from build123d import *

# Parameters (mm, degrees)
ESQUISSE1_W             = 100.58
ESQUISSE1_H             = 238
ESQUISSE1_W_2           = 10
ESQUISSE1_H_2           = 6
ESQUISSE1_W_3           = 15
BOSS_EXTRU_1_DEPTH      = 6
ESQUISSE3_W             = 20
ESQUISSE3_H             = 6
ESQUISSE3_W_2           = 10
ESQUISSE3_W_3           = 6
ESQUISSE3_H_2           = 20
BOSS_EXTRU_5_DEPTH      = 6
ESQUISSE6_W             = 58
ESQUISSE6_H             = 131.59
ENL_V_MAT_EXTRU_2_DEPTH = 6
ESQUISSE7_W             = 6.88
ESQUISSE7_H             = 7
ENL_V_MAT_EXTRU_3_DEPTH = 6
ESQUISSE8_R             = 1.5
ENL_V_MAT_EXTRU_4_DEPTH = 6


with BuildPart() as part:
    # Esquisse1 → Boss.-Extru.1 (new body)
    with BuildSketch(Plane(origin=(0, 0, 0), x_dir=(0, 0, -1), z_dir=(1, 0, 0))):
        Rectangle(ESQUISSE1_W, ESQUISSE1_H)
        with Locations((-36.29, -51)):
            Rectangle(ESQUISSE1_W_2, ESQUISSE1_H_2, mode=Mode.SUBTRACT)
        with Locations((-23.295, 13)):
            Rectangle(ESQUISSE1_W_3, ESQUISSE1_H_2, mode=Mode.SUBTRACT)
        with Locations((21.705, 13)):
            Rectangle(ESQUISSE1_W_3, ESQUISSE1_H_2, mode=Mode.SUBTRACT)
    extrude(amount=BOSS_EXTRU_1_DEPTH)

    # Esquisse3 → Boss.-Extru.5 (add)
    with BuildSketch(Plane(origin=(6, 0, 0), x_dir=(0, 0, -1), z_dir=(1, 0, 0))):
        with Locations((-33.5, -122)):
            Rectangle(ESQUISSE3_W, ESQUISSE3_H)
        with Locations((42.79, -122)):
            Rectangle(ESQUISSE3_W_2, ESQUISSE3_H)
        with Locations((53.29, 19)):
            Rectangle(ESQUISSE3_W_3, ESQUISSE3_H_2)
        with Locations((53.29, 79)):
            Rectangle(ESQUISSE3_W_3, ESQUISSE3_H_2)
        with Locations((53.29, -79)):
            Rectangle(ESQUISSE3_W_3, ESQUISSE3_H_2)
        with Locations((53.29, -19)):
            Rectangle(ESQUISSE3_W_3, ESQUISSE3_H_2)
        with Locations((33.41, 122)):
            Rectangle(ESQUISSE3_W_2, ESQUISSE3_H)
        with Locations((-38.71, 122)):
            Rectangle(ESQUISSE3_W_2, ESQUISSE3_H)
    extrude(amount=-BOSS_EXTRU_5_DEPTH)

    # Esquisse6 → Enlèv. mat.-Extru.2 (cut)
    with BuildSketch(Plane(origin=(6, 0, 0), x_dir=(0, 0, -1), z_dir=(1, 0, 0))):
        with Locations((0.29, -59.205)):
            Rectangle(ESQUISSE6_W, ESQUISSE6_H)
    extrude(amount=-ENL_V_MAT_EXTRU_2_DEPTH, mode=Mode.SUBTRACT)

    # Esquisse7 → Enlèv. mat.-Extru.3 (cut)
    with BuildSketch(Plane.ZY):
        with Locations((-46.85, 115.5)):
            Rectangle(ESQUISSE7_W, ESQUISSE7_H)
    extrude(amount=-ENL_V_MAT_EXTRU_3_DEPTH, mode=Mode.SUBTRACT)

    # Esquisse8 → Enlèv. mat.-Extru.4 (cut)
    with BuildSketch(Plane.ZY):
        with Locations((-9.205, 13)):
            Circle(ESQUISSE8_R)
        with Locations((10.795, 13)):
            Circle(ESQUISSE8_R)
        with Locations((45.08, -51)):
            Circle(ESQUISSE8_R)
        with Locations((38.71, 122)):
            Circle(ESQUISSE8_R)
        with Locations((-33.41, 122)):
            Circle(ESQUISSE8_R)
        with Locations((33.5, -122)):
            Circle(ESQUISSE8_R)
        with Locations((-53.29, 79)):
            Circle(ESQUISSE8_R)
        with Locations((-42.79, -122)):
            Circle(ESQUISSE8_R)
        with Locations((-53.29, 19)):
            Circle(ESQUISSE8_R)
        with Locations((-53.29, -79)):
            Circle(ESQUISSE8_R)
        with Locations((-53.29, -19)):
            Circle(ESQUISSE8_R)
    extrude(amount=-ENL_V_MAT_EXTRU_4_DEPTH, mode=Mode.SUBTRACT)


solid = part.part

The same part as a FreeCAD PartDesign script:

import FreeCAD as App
import Part
import Sketcher
from FreeCAD import Vector


def add_polygon(sketch, points):
    """Adds a closed chain of lines whose ends are joined by coincident constraints."""
    first, n = sketch.GeometryCount, len(points)
    for a, b in zip(points, points[1:] + points[:1]):
        sketch.addGeometry(Part.LineSegment(App.Vector(*a, 0), App.Vector(*b, 0)), False)
    for i in range(n):
        sketch.addConstraint(Sketcher.Constraint("Coincident", first + i, 2, first + (i + 1) % n, 1))

doc = App.newDocument("Part")
body = doc.addObject("PartDesign::Body", "Body")

# Sketch on YZ plane
sketch1 = body.newObject("Sketcher::SketchObject", "Sketch")
sketch1.AttachmentSupport = (doc.getObject("YZ_Plane"), [""])
sketch1.MapMode = "FlatFace"
add_polygon(sketch1, [(119, 50.29), (-119, 50.29), (-119, -50.29), (119, -50.29)])  # lines 0-3
add_polygon(sketch1, [(-54, 31.29), (-54, 41.29), (-48, 41.29), (-48, 31.29)])  # lines 4-7
add_polygon(sketch1, [(10, 15.795), (10, 30.795), (16, 30.795), (16, 15.795)])  # lines 8-11
add_polygon(sketch1, [(10, -29.205), (10, -14.205), (16, -14.205), (16, -29.205)])  # lines 12-15
sketch1.addConstraint(Sketcher.Constraint("Horizontal", 0))
sketch1.addConstraint(Sketcher.Constraint("Vertical", 1))
sketch1.addConstraint(Sketcher.Constraint("Horizontal", 2))
sketch1.addConstraint(Sketcher.Constraint("Vertical", 3))
sketch1.addConstraint(Sketcher.Constraint("Vertical", 4))
sketch1.addConstraint(Sketcher.Constraint("Horizontal", 5))
sketch1.addConstraint(Sketcher.Constraint("Vertical", 6))
sketch1.addConstraint(Sketcher.Constraint("Horizontal", 7))
sketch1.addConstraint(Sketcher.Constraint("Vertical", 8))
sketch1.addConstraint(Sketcher.Constraint("Horizontal", 9))
sketch1.addConstraint(Sketcher.Constraint("Vertical", 10))
sketch1.addConstraint(Sketcher.Constraint("Horizontal", 11))
sketch1.addConstraint(Sketcher.Constraint("Vertical", 12))
sketch1.addConstraint(Sketcher.Constraint("Horizontal", 13))
sketch1.addConstraint(Sketcher.Constraint("Vertical", 14))
sketch1.addConstraint(Sketcher.Constraint("Horizontal", 15))
sketch1.addConstraint(Sketcher.Constraint("Symmetric", 0, 2, 2, 2, -1, 1))
sketch1.addConstraint(Sketcher.Constraint("Vertical", 11, 2, 12, 2))
sketch1.addConstraint(Sketcher.Constraint("Vertical", 10, 2, 13, 2))
sketch1.addConstraint(Sketcher.Constraint("Equal", 7, 9))
sketch1.addConstraint(Sketcher.Constraint("Equal", 10, 12))
sketch1.addConstraint(Sketcher.Constraint("DistanceX", 0, 2, 0, 1, 238.0))
sketch1.addConstraint(Sketcher.Constraint("DistanceX", 5, 1, 5, 2, 6.0))
sketch1.addConstraint(Sketcher.Constraint("DistanceY", 4, 1, 4, 2, 10.0))
sketch1.addConstraint(Sketcher.Constraint("DistanceY", 8, 1, 8, 2, 15.0))
sketch1.addConstraint(Sketcher.Constraint("DistanceX", 4, 2, -1, 1, 54.0))
sketch1.addConstraint(Sketcher.Constraint("DistanceX", -1, 1, 8, 2, 10.0))
sketch1.addConstraint(Sketcher.Constraint("DistanceY", 4, 2, 0, 2, 9.0))
sketch1.addConstraint(Sketcher.Constraint("DistanceY", 12, 2, 11, 2, 30.0))
sketch1.addConstraint(Sketcher.Constraint("DistanceY", 1, 2, 1, 1, 100.58))
sketch1.addConstraint(Sketcher.Constraint("DistanceY", -1, 1, 8, 2, 30.795))
pad1 = body.newObject("PartDesign::Pad", "Pad")
pad1.Profile = sketch1
pad1.Length = 6

# Sketch on YZ plane
sketch2 = body.newObject("Sketcher::SketchObject", "Sketch001")
sketch2.AttachmentSupport = (doc.getObject("YZ_Plane"), [""])
sketch2.MapMode = "FlatFace"
sketch2.AttachmentOffset = App.Placement(Vector(0, 0, 6), App.Rotation())
add_polygon(sketch2, [(-119, 43.5), (-125, 43.5), (-125, 23.5), (-119, 23.5)])  # lines 0-3
add_polygon(sketch2, [(-119, -37.79), (-125, -37.79), (-125, -47.79), (-119, -47.79)])  # lines 4-7
add_polygon(sketch2, [(29, -50.29), (9, -50.29), (9, -56.29), (29, -56.29)])  # lines 8-11
add_polygon(sketch2, [(89, -50.29), (69, -50.29), (69, -56.29), (89, -56.29)])  # lines 12-15
add_polygon(sketch2, [(-69, -50.29), (-89, -50.29), (-89, -56.29), (-69, -56.29)])  # lines 16-19
add_polygon(sketch2, [(-9, -50.29), (-29, -50.29), (-29, -56.29), (-9, -56.29)])  # lines 20-23
add_polygon(sketch2, [(125, -28.41), (119, -28.41), (119, -38.41), (125, -38.41)])  # lines 24-27
add_polygon(sketch2, [(125, 43.71), (119, 43.71), (119, 33.71), (125, 33.71)])  # lines 28-31
sketch2.addConstraint(Sketcher.Constraint("Horizontal", 0))
sketch2.addConstraint(Sketcher.Constraint("Vertical", 1))
sketch2.addConstraint(Sketcher.Constraint("Horizontal", 2))
sketch2.addConstraint(Sketcher.Constraint("Vertical", 3))
sketch2.addConstraint(Sketcher.Constraint("Horizontal", 4))
sketch2.addConstraint(Sketcher.Constraint("Vertical", 5))
sketch2.addConstraint(Sketcher.Constraint("Horizontal", 6))
sketch2.addConstraint(Sketcher.Constraint("Vertical", 7))
sketch2.addConstraint(Sketcher.Constraint("Horizontal", 8))
sketch2.addConstraint(Sketcher.Constraint("Vertical", 9))
sketch2.addConstraint(Sketcher.Constraint("Horizontal", 10))
sketch2.addConstraint(Sketcher.Constraint("Vertical", 11))
sketch2.addConstraint(Sketcher.Constraint("Horizontal", 12))
sketch2.addConstraint(Sketcher.Constraint("Vertical", 13))
sketch2.addConstraint(Sketcher.Constraint("Horizontal", 14))
sketch2.addConstraint(Sketcher.Constraint("Vertical", 15))
sketch2.addConstraint(Sketcher.Constraint("Horizontal", 16))
sketch2.addConstraint(Sketcher.Constraint("Vertical", 17))
sketch2.addConstraint(Sketcher.Constraint("Horizontal", 18))
sketch2.addConstraint(Sketcher.Constraint("Vertical", 19))
sketch2.addConstraint(Sketcher.Constraint("Horizontal", 20))
sketch2.addConstraint(Sketcher.Constraint("Vertical", 21))
sketch2.addConstraint(Sketcher.Constraint("Horizontal", 22))
sketch2.addConstraint(Sketcher.Constraint("Vertical", 23))
sketch2.addConstraint(Sketcher.Constraint("Horizontal", 24))
sketch2.addConstraint(Sketcher.Constraint("Vertical", 25))
sketch2.addConstraint(Sketcher.Constraint("Horizontal", 26))
sketch2.addConstraint(Sketcher.Constraint("Vertical", 27))
sketch2.addConstraint(Sketcher.Constraint("Horizontal", 28))
sketch2.addConstraint(Sketcher.Constraint("Vertical", 29))
sketch2.addConstraint(Sketcher.Constraint("Horizontal", 30))
sketch2.addConstraint(Sketcher.Constraint("Vertical", 31))
sketch2.addConstraint(Sketcher.Constraint("Symmetric", 15, 2, 16, 2, -2))
sketch2.addConstraint(Sketcher.Constraint("Symmetric", 13, 2, 18, 2, -2))
sketch2.addConstraint(Sketcher.Constraint("Symmetric", 11, 2, 20, 2, -2))
sketch2.addConstraint(Sketcher.Constraint("Symmetric", 9, 2, 22, 2, -2))
sketch2.addConstraint(Sketcher.Constraint("Horizontal", 11, 2, 12, 2))
sketch2.addConstraint(Sketcher.Constraint("Horizontal", 10, 2, 13, 2))
sketch2.addConstraint(Sketcher.Constraint("Vertical", 1, 2, 4, 2))
sketch2.addConstraint(Sketcher.Constraint("Vertical", 3, 2, 6, 2))
sketch2.addConstraint(Sketcher.Constraint("Vertical", 25, 2, 28, 2))
sketch2.addConstraint(Sketcher.Constraint("Vertical", 27, 2, 30, 2))
sketch2.addConstraint(Sketcher.Constraint("Equal", 10, 12))
sketch2.addConstraint(Sketcher.Constraint("Equal", 6, 24))
sketch2.addConstraint(Sketcher.Constraint("Equal", 22, 1))
sketch2.addConstraint(Sketcher.Constraint("Equal", 30, 9))
sketch2.addConstraint(Sketcher.Constraint("Equal", 7, 25))
sketch2.addConstraint(Sketcher.Constraint("Equal", 27, 29))
sketch2.addConstraint(Sketcher.Constraint("DistanceX", 0, 2, 0, 1, 6.0))
sketch2.addConstraint(Sketcher.Constraint("DistanceX", 8, 2, 8, 1, 20.0))
sketch2.addConstraint(Sketcher.Constraint("DistanceY", 5, 2, 5, 1, 10.0))
sketch2.addConstraint(Sketcher.Constraint("DistanceX", 0, 2, -1, 1, 125.0))
sketch2.addConstraint(Sketcher.Constraint("DistanceX", -1, 1, 8, 2, 9.0))
sketch2.addConstraint(Sketcher.Constraint("DistanceX", -1, 1, 12, 2, 69.0))
sketch2.addConstraint(Sketcher.Constraint("DistanceX", -1, 1, 24, 2, 119.0))
sketch2.addConstraint(Sketcher.Constraint("DistanceY", 15, 2, 28, 2, 94.0))
sketch2.addConstraint(Sketcher.Constraint("DistanceY", -1, 1, 0, 2, 43.5))
sketch2.addConstraint(Sketcher.Constraint("DistanceY", 8, 2, 6, 2, 2.5))
sketch2.addConstraint(Sketcher.Constraint("DistanceY", 4, 2, -1, 1, 37.79))
sketch2.addConstraint(Sketcher.Constraint("DistanceY", 24, 2, -1, 1, 28.41))
pad2 = body.newObject("PartDesign::Pad", "Pad001")
pad2.Profile = sketch2
pad2.Length = 6
pad2.Reversed = True

# Sketch on YZ plane
sketch3 = body.newObject("Sketcher::SketchObject", "Sketch002")
sketch3.AttachmentSupport = (doc.getObject("YZ_Plane"), [""])
sketch3.MapMode = "FlatFace"
sketch3.AttachmentOffset = App.Placement(Vector(0, 0, 6), App.Rotation())
add_polygon(sketch3, [(6.59, 28.71), (-125, 28.71), (-125, -29.29), (6.59, -29.29)])  # lines 0-3
sketch3.addConstraint(Sketcher.Constraint("Horizontal", 0))
sketch3.addConstraint(Sketcher.Constraint("Vertical", 1))
sketch3.addConstraint(Sketcher.Constraint("Horizontal", 2))
sketch3.addConstraint(Sketcher.Constraint("Vertical", 3))
sketch3.addConstraint(Sketcher.Constraint("DistanceY", 1, 2, 1, 1, 58.0))
sketch3.addConstraint(Sketcher.Constraint("DistanceX", 0, 2, -1, 1, 125.0))
sketch3.addConstraint(Sketcher.Constraint("DistanceX", 0, 2, 0, 1, 131.59))
sketch3.addConstraint(Sketcher.Constraint("DistanceY", -1, 1, 0, 2, 28.71))
pocket1 = body.newObject("PartDesign::Pocket", "Pocket")
pocket1.Profile = sketch3
pocket1.Length = 6

# Sketch on YZ plane
sketch4 = body.newObject("Sketcher::SketchObject", "Sketch003")
sketch4.AttachmentSupport = (doc.getObject("YZ_Plane"), [""])
sketch4.MapMode = "FlatFace"
add_polygon(sketch4, [(119, -50.29), (112, -50.29), (112, -43.41), (119, -43.41)])  # lines 0-3
sketch4.addConstraint(Sketcher.Constraint("Horizontal", 0))
sketch4.addConstraint(Sketcher.Constraint("Vertical", 1))
sketch4.addConstraint(Sketcher.Constraint("Horizontal", 2))
sketch4.addConstraint(Sketcher.Constraint("Vertical", 3))
sketch4.addConstraint(Sketcher.Constraint("DistanceX", 0, 2, 0, 1, 7.0))
sketch4.addConstraint(Sketcher.Constraint("DistanceX", -1, 1, 0, 2, 112.0))
sketch4.addConstraint(Sketcher.Constraint("DistanceY", 1, 1, 1, 2, 6.88))
sketch4.addConstraint(Sketcher.Constraint("DistanceY", 0, 2, -1, 1, 50.29))
pocket2 = body.newObject("PartDesign::Pocket", "Pocket001")
pocket2.Profile = sketch4
pocket2.Length = 6
pocket2.Reversed = True

# Sketch on YZ plane
sketch5 = body.newObject("Sketcher::SketchObject", "Sketch004")
sketch5.AttachmentSupport = (doc.getObject("YZ_Plane"), [""])
sketch5.MapMode = "FlatFace"
sketch5.addGeometry(Part.Circle(Vector(13, -9.205, 0), Vector(0, 0, 1), 1.5), False)
sketch5.addGeometry(Part.Circle(Vector(13, 10.795, 0), Vector(0, 0, 1), 1.5), False)
sketch5.addGeometry(Part.Circle(Vector(-51, 45.08, 0), Vector(0, 0, 1), 1.5), False)
sketch5.addGeometry(Part.Circle(Vector(122, 38.71, 0), Vector(0, 0, 1), 1.5), False)
sketch5.addGeometry(Part.Circle(Vector(122, -33.41, 0), Vector(0, 0, 1), 1.5), False)
sketch5.addGeometry(Part.Circle(Vector(-122, 33.5, 0), Vector(0, 0, 1), 1.5), False)
sketch5.addGeometry(Part.Circle(Vector(79, -53.29, 0), Vector(0, 0, 1), 1.5), False)
sketch5.addGeometry(Part.Circle(Vector(-122, -42.79, 0), Vector(0, 0, 1), 1.5), False)
sketch5.addGeometry(Part.Circle(Vector(19, -53.29, 0), Vector(0, 0, 1), 1.5), False)
sketch5.addGeometry(Part.Circle(Vector(-79, -53.29, 0), Vector(0, 0, 1), 1.5), False)
sketch5.addGeometry(Part.Circle(Vector(-19, -53.29, 0), Vector(0, 0, 1), 1.5), False)
sketch5.addConstraint(Sketcher.Constraint("Equal", 0, 1))
sketch5.addConstraint(Sketcher.Constraint("Equal", 1, 2))
sketch5.addConstraint(Sketcher.Constraint("Equal", 2, 3))
sketch5.addConstraint(Sketcher.Constraint("Equal", 3, 4))
sketch5.addConstraint(Sketcher.Constraint("Equal", 4, 5))
sketch5.addConstraint(Sketcher.Constraint("Equal", 5, 6))
sketch5.addConstraint(Sketcher.Constraint("Equal", 6, 7))
sketch5.addConstraint(Sketcher.Constraint("Equal", 7, 8))
sketch5.addConstraint(Sketcher.Constraint("Equal", 8, 9))
sketch5.addConstraint(Sketcher.Constraint("Equal", 9, 10))
sketch5.addConstraint(Sketcher.Constraint("Symmetric", 6, 3, 9, 3, -2))
sketch5.addConstraint(Sketcher.Constraint("Symmetric", 8, 3, 10, 3, -2))
sketch5.addConstraint(Sketcher.Constraint("Horizontal", 6, 3, 8, 3))
sketch5.addConstraint(Sketcher.Constraint("Vertical", 0, 3, 1, 3))
sketch5.addConstraint(Sketcher.Constraint("Vertical", 3, 3, 4, 3))
sketch5.addConstraint(Sketcher.Constraint("Vertical", 5, 3, 7, 3))
sketch5.addConstraint(Sketcher.Constraint("Diameter", 0, 3.0))
sketch5.addConstraint(Sketcher.Constraint("DistanceX", -1, 1, 0, 3, 13.0))
sketch5.addConstraint(Sketcher.Constraint("DistanceX", 2, 3, -1, 1, 51.0))
sketch5.addConstraint(Sketcher.Constraint("DistanceX", -1, 1, 3, 3, 122.0))
sketch5.addConstraint(Sketcher.Constraint("DistanceX", 5, 3, -1, 1, 122.0))
sketch5.addConstraint(Sketcher.Constraint("DistanceX", -1, 1, 6, 3, 79.0))
sketch5.addConstraint(Sketcher.Constraint("DistanceX", -1, 1, 8, 3, 19.0))
sketch5.addConstraint(Sketcher.Constraint("DistanceY", 0, 3, 1, 3, 20.0))
sketch5.addConstraint(Sketcher.Constraint("DistanceY", 6, 3, 3, 3, 92.0))
sketch5.addConstraint(Sketcher.Constraint("DistanceY", -1, 1, 5, 3, 33.5))
sketch5.addConstraint(Sketcher.Constraint("DistanceY", 6, 3, 7, 3, 10.5))
sketch5.addConstraint(Sketcher.Constraint("DistanceY", -1, 1, 2, 3, 45.08))
sketch5.addConstraint(Sketcher.Constraint("DistanceY", -1, 1, 3, 3, 38.71))
sketch5.addConstraint(Sketcher.Constraint("DistanceY", 4, 3, -1, 1, 33.41))
sketch5.addConstraint(Sketcher.Constraint("DistanceY", 0, 3, -1, 1, 9.205))
pocket3 = body.newObject("PartDesign::Pocket", "Pocket002")
pocket3.Profile = sketch5
pocket3.Length = 6
pocket3.Reversed = True

doc.recompute()
